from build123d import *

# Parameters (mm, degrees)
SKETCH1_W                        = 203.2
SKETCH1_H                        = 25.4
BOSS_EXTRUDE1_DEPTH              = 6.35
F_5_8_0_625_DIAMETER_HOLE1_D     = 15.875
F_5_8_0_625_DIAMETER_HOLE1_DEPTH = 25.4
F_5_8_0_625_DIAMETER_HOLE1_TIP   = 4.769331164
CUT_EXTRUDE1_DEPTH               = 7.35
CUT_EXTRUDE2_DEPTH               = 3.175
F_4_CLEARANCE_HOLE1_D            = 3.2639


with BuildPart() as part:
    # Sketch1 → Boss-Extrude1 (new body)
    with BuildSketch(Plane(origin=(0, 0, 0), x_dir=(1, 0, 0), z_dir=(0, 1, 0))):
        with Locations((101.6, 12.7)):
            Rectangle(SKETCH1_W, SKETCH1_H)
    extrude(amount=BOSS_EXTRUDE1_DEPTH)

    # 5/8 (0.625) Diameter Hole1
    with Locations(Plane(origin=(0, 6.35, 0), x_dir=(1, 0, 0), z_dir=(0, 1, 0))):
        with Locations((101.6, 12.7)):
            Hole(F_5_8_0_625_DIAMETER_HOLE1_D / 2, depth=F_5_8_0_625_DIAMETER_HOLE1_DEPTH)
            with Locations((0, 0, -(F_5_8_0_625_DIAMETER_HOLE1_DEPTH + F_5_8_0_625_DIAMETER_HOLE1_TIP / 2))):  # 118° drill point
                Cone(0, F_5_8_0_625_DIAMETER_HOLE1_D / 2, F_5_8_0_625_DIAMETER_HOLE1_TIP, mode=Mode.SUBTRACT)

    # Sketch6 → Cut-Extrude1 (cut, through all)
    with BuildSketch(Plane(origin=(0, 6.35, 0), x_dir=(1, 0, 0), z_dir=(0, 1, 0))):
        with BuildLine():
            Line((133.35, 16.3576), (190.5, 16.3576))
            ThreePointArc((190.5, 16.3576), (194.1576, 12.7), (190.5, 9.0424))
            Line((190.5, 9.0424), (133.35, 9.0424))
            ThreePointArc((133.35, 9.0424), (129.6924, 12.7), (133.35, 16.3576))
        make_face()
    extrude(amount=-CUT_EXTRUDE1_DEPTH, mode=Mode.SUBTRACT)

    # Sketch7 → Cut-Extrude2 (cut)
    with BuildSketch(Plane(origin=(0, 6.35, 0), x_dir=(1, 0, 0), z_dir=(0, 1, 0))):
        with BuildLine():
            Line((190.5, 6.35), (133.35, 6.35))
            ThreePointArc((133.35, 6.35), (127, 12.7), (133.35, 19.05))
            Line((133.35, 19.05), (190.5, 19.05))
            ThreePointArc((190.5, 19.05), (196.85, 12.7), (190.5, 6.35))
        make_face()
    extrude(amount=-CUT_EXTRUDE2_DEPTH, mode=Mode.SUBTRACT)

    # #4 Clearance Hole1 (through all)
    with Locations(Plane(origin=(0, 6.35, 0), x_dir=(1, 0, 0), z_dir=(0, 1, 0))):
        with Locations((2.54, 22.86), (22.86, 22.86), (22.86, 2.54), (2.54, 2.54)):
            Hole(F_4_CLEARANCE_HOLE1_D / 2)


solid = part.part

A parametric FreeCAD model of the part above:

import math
import FreeCAD as App
import Part
import Sketcher

V = App.Vector
Q = App.Units.Quantity

doc = App.newDocument("Part")
body = doc.addObject("PartDesign::Body", "Body")

sketch1 = body.newObject("Sketcher::SketchObject", "Sketch")
sketch1.AttachmentSupport = (doc.getObject("XZ_Plane"), [""])
sketch1.MapMode = "FlatFace"
sketch1.addGeometry(Part.LineSegment(V(0, -25, 0), V(0, 0, 0)), False)
sketch1.addGeometry(Part.LineSegment(V(0, 0, 0), V(203, 0, 0)), False)
sketch1.addGeometry(Part.LineSegment(V(203, 0, 0), V(203, -25, 0)), False)
sketch1.addGeometry(Part.LineSegment(V(203, -25, 0), V(0, -25, 0)), False)
sketch1.addConstraint(Sketcher.Constraint("Coincident", 0, 2, 1, 1))
sketch1.addConstraint(Sketcher.Constraint("Coincident", 1, 2, 2, 1))
sketch1.addConstraint(Sketcher.Constraint("Coincident", 2, 2, 3, 1))
sketch1.addConstraint(Sketcher.Constraint("Coincident", 3, 2, 0, 1))
sketch1.addConstraint(Sketcher.Constraint("Vertical", 0))
sketch1.addConstraint(Sketcher.Constraint("Horizontal", 1))
sketch1.addConstraint(Sketcher.Constraint("Vertical", 2))
sketch1.addConstraint(Sketcher.Constraint("Horizontal", 3))
sketch1.addConstraint(Sketcher.Constraint("Coincident", 0, 2, -1, 1))
sketch1.addConstraint(Sketcher.Constraint("DistanceX", 1, 1, 1, 2, Q("8 in")))
sketch1.addConstraint(Sketcher.Constraint("DistanceY", 0, 1, 0, 2, Q("1 in")))
pad1 = body.newObject("PartDesign::Pad", "Pad")
pad1.Profile = sketch1
pad1.Length = Q("0.25 in")
pad1.Reversed = True

sketch2 = body.newObject("Sketcher::SketchObject", "Sketch001")
sketch2.AttachmentSupport = (doc.getObject("XZ_Plane"), [""])
sketch2.MapMode = "FlatFace"
sketch2.AttachmentOffset = App.Placement(V(0, 0, -0.25 * 25.4), App.Rotation())
sketch2.addGeometry(Part.Circle(V(102, -13, 0), V(0, 0, 1), 8), False)
sketch2.addConstraint(Sketcher.Constraint("Diameter", 0, Q("0.625 in")))
sketch2.addConstraint(Sketcher.Constraint("DistanceX", -1, 1, 0, 3, Q("4 in")))
sketch2.addConstraint(Sketcher.Constraint("DistanceY", 0, 3, -1, 1, Q("0.5 in")))
doc.recompute()
hole = body.newObject("PartDesign::Hole", "Hole")
hole.Profile = sketch2
hole.ThreadType = "None"
hole.Diameter = Q("0.625 in")
hole.DepthType = "Dimension"
hole.Depth = Q("1 in")
hole.DrillPoint = "Angled"
hole.DrillPointAngle = 118
hole.Reversed = True

sketch3 = body.newObject("Sketcher::SketchObject", "Sketch002")
sketch3.AttachmentSupport = (doc.getObject("XZ_Plane"), [""])
sketch3.MapMode = "FlatFace"
sketch3.AttachmentOffset = App.Placement(V(0, 0, -0.25 * 25.4), App.Rotation())
sketch3.addGeometry(Part.LineSegment(V(190.5, -16.4, 0), V(133.3, -16.4, 0)), False)
sketch3.addGeometry(Part.ArcOfCircle(Part.Circle(V(133.3, -12.7, 0), V(0, 0, 1), 3.7), math.radians(90), math.radians(270)), False)
sketch3.addGeometry(Part.LineSegment(V(133.3, -9, 0), V(190.5, -9, 0)), False)
sketch3.addGeometry(Part.ArcOfCircle(Part.Circle(V(190.5, -12.7, 0), V(0, 0, 1), 3.7), math.radians(-90), math.radians(90)), False)
sketch3.addConstraint(Sketcher.Constraint("Tangent", 0, 2, 1, 2))
sketch3.addConstraint(Sketcher.Constraint("Tangent", 1, 1, 2, 1))
sketch3.addConstraint(Sketcher.Constraint("Tangent", 2, 2, 3, 2))
sketch3.addConstraint(Sketcher.Constraint("Tangent", 3, 1, 0, 1))
sketch3.addConstraint(Sketcher.Constraint("Horizontal", 0))
sketch3.addConstraint(Sketcher.Constraint("Horizontal", 2))
sketch3.addConstraint(Sketcher.Constraint("Radius", 1, Q("0.144 in")))
sketch3.addConstraint(Sketcher.Constraint("DistanceX", 0, 2, 0, 1, Q("2.25 in")))
sketch3.addConstraint(Sketcher.Constraint("DistanceY", 1, 3, -1, 1, Q("0.5 in")))
sketch3.addConstraint(Sketcher.Constraint("DistanceX", -1, 1, 3, 3, Q("7.5 in")))
pocket1 = body.newObject("PartDesign::Pocket", "Pocket")
pocket1.Profile = sketch3
pocket1.Type = "ThroughAll"
pocket1.Reversed = True

sketch4 = body.newObject("Sketcher::SketchObject", "Sketch003")
sketch4.AttachmentSupport = (doc.getObject("XZ_Plane"), [""])
sketch4.MapMode = "FlatFace"
sketch4.AttachmentOffset = App.Placement(V(0, 0, -0.25 * 25.4), App.Rotation())
sketch4.addGeometry(Part.LineSegment(V(133, -6, 0), V(190, -6, 0)), False)
sketch4.addGeometry(Part.ArcOfCircle(Part.Circle(V(190, -13, 0), V(0, 0, 1), 6), math.radians(-90), math.radians(90)), False)
sketch4.addGeometry(Part.LineSegment(V(190, -19, 0), V(133, -19, 0)), False)
sketch4.addGeometry(Part.ArcOfCircle(Part.Circle(V(133, -13, 0), V(0, 0, 1), 6), math.radians(90), math.radians(270)), False)
sketch4.addConstraint(Sketcher.Constraint("Tangent", 0, 2, 1, 2))
sketch4.addConstraint(Sketcher.Constraint("Tangent", 1, 1, 2, 1))
sketch4.addConstraint(Sketcher.Constraint("Tangent", 2, 2, 3, 2))
sketch4.addConstraint(Sketcher.Constraint("Tangent", 3, 1, 0, 1))
sketch4.addConstraint(Sketcher.Constraint("Horizontal", 0))
sketch4.addConstraint(Sketcher.Constraint("Horizontal", 2))
sketch4.addConstraint(Sketcher.Constraint("Radius", 1, Q("0.25 in")))
sketch4.addConstraint(Sketcher.Constraint("DistanceX", 0, 1, 0, 2, Q("2.25 in")))
sketch4.addConstraint(Sketcher.Constraint("DistanceX", -1, 1, 1, 3, Q("7.5 in")))
sketch4.addConstraint(Sketcher.Constraint("DistanceY", 1, 3, -1, 1, Q("0.5 in")))
pocket2 = body.newObject("PartDesign::Pocket", "Pocket001")
pocket2.Profile = sketch4
pocket2.Length = Q("0.125 in")
pocket2.Reversed = True

sketch5 = body.newObject("Sketcher::SketchObject", "Sketch004")
sketch5.AttachmentSupport = (doc.getObject("XZ_Plane"), [""])
sketch5.MapMode = "FlatFace"
sketch5.AttachmentOffset = App.Placement(V(0, 0, -0.25 * 25.4), App.Rotation())
sketch5.addGeometry(Part.Circle(V(2.5, -22.9, 0), V(0, 0, 1), 1.6), False)
sketch5.addGeometry(Part.Circle(V(22.9, -22.9, 0), V(0, 0, 1), 1.6), False)
sketch5.addGeometry(Part.Circle(V(22.9, -2.5, 0), V(0, 0, 1), 1.6), False)
sketch5.addGeometry(Part.Circle(V(2.5, -2.5, 0), V(0, 0, 1), 1.6), False)
sketch5.addConstraint(Sketcher.Constraint("Equal", 0, 1))
sketch5.addConstraint(Sketcher.Constraint("Equal", 1, 2))
sketch5.addConstraint(Sketcher.Constraint("Equal", 2, 3))
sketch5.addConstraint(Sketcher.Constraint("Horizontal", 0, 3, 1, 3))
sketch5.addConstraint(Sketcher.Constraint("Horizontal", 2, 3, 3, 3))
sketch5.addConstraint(Sketcher.Constraint("Vertical", 1, 3, 2, 3))
sketch5.addConstraint(Sketcher.Constraint("Vertical", 0, 3, 3, 3))
sketch5.addConstraint(Sketcher.Constraint("Diameter", 0, Q("0.1285 in")))
sketch5.addConstraint(Sketcher.Constraint("DistanceX", -1, 1, 0, 3, Q("0.1 in")))
sketch5.addConstraint(Sketcher.Constraint("DistanceY", 0, 3, -1, 1, Q("0.9 in")))
sketch5.addConstraint(Sketcher.Constraint("DistanceX", -1, 1, 1, 3, Q("0.9 in")))
sketch5.addConstraint(Sketcher.Constraint("DistanceY", 2, 3, -1, 1, Q("0.1 in")))
doc.recompute()
hole2 = body.newObject("PartDesign::Hole", "Hole001")
hole2.Profile = sketch5
hole2.ThreadType = "None"
hole2.Diameter = Q("0.1285 in")
hole2.DepthType = "ThroughAll"
hole2.Reversed = True

doc.recompute()
